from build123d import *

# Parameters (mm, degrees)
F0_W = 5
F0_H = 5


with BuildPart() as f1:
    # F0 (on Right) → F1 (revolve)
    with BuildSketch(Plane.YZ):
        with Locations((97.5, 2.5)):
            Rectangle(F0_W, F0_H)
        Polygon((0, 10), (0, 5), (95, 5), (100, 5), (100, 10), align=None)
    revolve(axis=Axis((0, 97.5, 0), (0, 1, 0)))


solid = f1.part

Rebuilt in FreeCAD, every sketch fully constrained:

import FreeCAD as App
import Part
import Sketcher

V = App.Vector
Q = App.Units.Quantity

doc = App.newDocument("Part")
params = doc.addObject("Spreadsheet::Sheet", "Params")
for row, (alias, value) in enumerate([
    ("sketch1_width", "5 mm"),
    ("sketch1_width2", "100 mm"),
    ("revolution_angle", "360 deg"),
], start=1):
    params.set(f"A{row}", alias)
    params.set(f"B{row}", "=" + value)
    params.setAlias(f"B{row}", alias)

body = doc.addObject("PartDesign::Body", "Body")

# Sketch on YZ plane
sketch1 = body.newObject("Sketcher::SketchObject", "Sketch")
sketch1.AttachmentSupport = (doc.getObject("YZ_Plane"), [""])
sketch1.MapMode = "FlatFace"
sketch1.addGeometry([
    Part.LineSegment(V(95, 5, 0), V(95, 0, 0)),  # 0
    Part.LineSegment(V(95, 0, 0), V(100, 0, 0)),  # 1
    Part.LineSegment(V(100, 0, 0), V(100, 10, 0)),  # 2
    Part.LineSegment(V(100, 10, 0), V(0, 10, 0)),  # 3
    Part.LineSegment(V(0, 10, 0), V(0, 5, 0)),  # 4
    Part.LineSegment(V(0, 5, 0), V(95, 5, 0)),  # 5
], False)
sketch1.addConstraint([
    Sketcher.Constraint("Coincident", 0, 2, 1, 1),
    Sketcher.Constraint("Coincident", 1, 2, 2, 1),
    Sketcher.Constraint("Coincident", 2, 2, 3, 1),
    Sketcher.Constraint("Coincident", 3, 2, 4, 1),
    Sketcher.Constraint("Coincident", 4, 2, 5, 1),
    Sketcher.Constraint("Coincident", 5, 2, 0, 1),
    Sketcher.Constraint("Vertical", 0),
    Sketcher.Constraint("Horizontal", 1),
    Sketcher.Constraint("Vertical", 2),
    Sketcher.Constraint("Horizontal", 3),
    Sketcher.Constraint("Vertical", 4),
    Sketcher.Constraint("Horizontal", 5),
    Sketcher.Constraint("PointOnObject", 0, 2, -1),
    Sketcher.Constraint("PointOnObject", 3, 2, -2),
    Sketcher.Constraint("Equal", 1, 0),
    Sketcher.Constraint("Equal", 0, 4),
    Sketcher.Constraint("DistanceX", 1, 1, 1, 2, Q("5 mm")),
    Sketcher.Constraint("DistanceX", 3, 2, 3, 1, Q("100 mm")),
])
sketch1.setExpression("Constraints[16]", "Params.sketch1_width")
sketch1.setExpression("Constraints[17]", "Params.sketch1_width2")
revolution = body.newObject("PartDesign::Revolution", "Revolution")
revolution.Profile = sketch1
revolution.ReferenceAxis = (sketch1, ["H_Axis"])
revolution.setExpression("Angle", "Params.revolution_angle")

doc.recompute()
